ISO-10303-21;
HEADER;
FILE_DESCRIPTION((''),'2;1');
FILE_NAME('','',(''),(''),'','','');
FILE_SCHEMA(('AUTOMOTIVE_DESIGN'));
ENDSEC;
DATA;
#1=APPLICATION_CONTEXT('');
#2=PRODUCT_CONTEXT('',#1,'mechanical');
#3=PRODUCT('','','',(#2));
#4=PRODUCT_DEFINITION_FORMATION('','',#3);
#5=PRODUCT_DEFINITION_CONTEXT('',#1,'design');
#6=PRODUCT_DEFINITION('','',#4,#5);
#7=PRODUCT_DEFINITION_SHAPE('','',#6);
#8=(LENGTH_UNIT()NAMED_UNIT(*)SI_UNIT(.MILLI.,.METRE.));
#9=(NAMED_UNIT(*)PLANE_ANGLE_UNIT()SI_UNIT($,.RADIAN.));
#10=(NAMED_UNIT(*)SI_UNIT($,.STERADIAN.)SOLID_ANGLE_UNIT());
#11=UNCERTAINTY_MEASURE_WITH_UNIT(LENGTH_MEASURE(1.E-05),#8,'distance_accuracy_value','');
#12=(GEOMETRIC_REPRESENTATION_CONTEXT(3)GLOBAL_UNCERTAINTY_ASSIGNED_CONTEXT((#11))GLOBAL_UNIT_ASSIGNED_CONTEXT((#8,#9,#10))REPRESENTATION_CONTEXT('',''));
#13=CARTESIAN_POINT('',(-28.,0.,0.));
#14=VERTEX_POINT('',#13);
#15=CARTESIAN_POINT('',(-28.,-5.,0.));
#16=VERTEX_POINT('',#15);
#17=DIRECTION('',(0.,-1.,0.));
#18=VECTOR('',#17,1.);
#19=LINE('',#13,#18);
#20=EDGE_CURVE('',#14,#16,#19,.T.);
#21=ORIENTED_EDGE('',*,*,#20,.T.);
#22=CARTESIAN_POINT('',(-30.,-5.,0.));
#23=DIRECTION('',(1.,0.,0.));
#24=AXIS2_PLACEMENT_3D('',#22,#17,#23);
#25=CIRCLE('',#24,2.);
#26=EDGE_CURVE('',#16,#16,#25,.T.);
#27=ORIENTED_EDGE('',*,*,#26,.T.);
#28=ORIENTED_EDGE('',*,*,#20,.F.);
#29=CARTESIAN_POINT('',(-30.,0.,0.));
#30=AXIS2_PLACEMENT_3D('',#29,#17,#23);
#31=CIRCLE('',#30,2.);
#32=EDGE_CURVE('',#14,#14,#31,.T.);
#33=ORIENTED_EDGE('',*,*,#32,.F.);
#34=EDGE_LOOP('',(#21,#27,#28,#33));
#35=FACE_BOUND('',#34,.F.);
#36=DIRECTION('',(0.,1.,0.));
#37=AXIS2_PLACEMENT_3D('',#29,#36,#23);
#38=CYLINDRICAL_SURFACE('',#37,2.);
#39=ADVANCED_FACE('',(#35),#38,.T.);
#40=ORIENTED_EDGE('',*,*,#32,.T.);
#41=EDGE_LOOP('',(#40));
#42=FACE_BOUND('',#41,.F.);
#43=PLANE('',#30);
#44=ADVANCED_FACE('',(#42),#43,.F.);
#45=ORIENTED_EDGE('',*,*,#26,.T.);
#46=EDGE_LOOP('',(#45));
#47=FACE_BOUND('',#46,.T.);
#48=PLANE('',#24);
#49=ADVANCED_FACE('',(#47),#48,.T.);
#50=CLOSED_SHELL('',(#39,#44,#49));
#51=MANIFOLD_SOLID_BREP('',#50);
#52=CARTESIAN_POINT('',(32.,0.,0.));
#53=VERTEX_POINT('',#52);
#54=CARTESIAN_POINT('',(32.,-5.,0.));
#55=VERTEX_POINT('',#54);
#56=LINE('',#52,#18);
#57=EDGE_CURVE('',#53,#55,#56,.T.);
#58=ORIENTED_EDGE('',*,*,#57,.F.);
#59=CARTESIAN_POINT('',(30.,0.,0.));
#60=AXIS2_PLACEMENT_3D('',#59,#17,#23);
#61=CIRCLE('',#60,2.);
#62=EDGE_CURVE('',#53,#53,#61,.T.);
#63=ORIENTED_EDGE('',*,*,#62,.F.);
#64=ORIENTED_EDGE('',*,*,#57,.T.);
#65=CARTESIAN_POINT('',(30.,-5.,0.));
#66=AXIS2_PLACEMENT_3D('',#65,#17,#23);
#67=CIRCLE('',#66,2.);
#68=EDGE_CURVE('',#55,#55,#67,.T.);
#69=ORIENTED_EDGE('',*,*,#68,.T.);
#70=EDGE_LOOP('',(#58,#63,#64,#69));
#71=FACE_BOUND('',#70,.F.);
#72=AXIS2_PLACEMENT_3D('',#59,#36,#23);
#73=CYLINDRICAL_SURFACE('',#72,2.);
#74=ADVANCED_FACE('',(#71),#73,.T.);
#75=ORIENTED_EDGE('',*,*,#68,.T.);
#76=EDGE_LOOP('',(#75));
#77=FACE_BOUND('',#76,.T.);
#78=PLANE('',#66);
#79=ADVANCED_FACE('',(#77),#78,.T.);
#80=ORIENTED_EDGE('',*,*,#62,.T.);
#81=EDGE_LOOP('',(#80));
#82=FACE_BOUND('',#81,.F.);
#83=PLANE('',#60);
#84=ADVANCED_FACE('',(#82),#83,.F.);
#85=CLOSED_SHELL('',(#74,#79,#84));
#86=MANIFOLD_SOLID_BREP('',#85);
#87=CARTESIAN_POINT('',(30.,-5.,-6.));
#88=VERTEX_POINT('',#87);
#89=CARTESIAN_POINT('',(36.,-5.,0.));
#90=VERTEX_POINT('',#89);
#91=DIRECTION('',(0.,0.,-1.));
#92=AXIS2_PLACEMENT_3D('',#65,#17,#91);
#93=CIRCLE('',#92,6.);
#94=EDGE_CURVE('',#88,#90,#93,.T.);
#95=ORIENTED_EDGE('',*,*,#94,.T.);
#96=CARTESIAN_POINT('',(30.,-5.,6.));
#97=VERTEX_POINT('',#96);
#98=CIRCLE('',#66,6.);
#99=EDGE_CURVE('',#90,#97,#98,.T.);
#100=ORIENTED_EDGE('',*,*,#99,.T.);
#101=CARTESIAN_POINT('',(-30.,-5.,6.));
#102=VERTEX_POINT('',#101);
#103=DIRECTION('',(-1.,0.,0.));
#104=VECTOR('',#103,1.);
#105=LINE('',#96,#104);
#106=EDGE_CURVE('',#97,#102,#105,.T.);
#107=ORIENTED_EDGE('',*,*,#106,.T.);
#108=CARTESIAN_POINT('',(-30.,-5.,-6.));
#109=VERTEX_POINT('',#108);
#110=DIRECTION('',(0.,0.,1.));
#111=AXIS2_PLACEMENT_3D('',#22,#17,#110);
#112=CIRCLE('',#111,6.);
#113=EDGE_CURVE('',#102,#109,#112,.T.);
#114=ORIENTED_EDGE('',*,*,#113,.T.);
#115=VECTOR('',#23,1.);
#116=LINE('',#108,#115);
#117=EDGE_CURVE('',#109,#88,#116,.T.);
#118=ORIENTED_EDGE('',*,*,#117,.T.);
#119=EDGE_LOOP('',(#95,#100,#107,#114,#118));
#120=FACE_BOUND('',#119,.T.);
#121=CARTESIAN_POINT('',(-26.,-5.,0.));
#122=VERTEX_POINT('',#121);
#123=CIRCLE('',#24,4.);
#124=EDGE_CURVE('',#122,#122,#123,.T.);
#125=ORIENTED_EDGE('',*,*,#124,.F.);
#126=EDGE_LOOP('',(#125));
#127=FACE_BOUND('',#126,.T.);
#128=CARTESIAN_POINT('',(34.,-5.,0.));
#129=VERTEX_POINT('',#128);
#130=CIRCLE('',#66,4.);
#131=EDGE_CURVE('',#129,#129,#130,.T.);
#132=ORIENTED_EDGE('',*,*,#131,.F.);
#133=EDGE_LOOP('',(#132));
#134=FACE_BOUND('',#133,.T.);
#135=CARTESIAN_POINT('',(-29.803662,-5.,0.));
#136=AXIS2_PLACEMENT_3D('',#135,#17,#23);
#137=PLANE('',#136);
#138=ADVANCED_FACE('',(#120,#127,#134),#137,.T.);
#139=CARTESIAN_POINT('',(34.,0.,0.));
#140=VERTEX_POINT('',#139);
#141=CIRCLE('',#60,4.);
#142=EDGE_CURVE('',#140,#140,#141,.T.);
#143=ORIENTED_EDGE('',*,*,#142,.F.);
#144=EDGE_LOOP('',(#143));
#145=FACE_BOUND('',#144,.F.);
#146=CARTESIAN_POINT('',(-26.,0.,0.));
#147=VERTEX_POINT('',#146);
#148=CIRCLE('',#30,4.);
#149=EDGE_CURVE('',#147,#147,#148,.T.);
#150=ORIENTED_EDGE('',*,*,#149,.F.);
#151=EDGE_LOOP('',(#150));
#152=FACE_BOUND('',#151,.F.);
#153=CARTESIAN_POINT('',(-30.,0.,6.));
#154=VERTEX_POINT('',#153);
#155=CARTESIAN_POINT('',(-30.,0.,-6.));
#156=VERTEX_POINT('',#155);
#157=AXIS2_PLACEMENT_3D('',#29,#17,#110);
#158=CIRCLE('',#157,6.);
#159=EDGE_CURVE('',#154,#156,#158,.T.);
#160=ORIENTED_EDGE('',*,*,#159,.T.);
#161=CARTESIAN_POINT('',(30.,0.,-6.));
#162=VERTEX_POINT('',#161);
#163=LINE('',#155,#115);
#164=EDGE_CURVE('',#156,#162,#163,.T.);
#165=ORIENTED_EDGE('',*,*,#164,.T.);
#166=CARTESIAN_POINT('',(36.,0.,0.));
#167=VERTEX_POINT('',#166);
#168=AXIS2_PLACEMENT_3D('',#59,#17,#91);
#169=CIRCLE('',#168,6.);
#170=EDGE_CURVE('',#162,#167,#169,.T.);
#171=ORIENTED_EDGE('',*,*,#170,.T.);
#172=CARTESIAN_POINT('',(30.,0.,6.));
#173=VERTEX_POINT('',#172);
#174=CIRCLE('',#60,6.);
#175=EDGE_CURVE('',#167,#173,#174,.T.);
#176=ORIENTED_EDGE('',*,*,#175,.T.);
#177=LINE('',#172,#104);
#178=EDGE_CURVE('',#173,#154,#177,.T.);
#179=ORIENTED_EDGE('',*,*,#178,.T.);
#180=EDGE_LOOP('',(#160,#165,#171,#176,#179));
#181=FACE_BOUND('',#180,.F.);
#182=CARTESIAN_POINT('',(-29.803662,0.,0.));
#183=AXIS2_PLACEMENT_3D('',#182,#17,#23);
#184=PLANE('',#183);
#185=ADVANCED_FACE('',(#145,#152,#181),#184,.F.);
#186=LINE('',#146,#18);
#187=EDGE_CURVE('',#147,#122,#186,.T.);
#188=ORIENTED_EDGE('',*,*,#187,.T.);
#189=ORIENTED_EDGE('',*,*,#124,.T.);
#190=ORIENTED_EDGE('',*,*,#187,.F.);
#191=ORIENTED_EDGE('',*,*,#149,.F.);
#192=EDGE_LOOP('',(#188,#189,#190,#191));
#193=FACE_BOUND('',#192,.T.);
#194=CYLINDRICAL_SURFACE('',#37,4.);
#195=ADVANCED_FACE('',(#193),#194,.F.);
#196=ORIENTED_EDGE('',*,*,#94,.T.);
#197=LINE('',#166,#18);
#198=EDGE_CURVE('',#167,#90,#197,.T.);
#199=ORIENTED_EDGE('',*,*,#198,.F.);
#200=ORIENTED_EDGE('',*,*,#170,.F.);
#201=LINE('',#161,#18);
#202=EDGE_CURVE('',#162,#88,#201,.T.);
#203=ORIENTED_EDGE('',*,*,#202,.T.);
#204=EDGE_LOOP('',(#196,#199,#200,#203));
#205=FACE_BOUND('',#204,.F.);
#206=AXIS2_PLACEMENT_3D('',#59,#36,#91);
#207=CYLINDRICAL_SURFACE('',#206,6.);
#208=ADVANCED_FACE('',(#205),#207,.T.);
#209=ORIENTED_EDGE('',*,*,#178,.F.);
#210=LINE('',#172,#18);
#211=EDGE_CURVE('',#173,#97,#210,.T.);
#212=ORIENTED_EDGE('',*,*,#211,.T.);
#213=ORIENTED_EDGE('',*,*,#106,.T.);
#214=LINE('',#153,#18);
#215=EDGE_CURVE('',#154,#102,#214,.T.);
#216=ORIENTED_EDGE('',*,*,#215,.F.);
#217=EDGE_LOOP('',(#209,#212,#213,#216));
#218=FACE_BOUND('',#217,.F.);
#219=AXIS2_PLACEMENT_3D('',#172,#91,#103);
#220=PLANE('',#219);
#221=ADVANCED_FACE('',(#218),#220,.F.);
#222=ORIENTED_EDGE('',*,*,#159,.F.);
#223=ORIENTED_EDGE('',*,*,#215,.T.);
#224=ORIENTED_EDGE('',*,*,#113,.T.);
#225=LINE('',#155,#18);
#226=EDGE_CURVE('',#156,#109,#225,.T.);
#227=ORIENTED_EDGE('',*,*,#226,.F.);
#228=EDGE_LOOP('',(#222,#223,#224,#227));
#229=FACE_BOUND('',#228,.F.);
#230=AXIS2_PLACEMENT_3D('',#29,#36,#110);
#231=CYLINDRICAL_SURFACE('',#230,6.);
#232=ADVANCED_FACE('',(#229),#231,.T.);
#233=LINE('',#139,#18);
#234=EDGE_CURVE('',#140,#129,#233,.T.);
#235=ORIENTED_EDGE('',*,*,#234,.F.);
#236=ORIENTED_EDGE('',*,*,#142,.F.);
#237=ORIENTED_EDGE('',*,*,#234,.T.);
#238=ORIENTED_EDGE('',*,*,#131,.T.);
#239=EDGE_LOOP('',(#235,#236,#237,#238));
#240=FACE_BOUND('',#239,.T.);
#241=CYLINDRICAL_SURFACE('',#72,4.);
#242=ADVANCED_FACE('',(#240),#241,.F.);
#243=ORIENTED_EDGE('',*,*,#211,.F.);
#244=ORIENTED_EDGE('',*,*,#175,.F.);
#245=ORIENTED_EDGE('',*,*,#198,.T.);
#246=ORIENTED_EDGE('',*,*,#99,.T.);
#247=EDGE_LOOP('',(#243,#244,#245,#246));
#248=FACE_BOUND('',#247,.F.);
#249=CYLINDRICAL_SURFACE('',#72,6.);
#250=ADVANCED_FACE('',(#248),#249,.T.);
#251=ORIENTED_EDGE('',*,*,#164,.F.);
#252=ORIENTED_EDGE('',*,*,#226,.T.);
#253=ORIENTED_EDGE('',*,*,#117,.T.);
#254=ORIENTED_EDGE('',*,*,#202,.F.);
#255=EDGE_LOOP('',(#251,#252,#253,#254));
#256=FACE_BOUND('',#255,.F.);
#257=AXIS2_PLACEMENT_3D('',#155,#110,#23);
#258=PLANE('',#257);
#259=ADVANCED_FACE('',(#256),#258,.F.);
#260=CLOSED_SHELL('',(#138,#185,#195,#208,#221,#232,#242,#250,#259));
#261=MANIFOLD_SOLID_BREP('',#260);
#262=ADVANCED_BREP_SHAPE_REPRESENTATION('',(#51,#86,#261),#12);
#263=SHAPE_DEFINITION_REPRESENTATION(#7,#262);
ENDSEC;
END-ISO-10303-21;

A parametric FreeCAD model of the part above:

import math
import FreeCAD as App
import Part
import Sketcher
from FreeCAD import Vector

doc = App.newDocument("Part")
body = doc.addObject("PartDesign::Body", "Body")

sketch1 = body.newObject("Sketcher::SketchObject", "Sketch")
sketch1.AttachmentSupport = (doc.getObject("XZ_Plane"), [""])
sketch1.MapMode = "FlatFace"
sketch1.addGeometry(Part.Circle(Vector(-30, 0, 0), Vector(0, 0, 1), 2), False)
sketch1.addConstraint([
    Sketcher.Constraint("PointOnObject", 0, 3, -1),
    Sketcher.Constraint("Diameter", 0, 4.0),
    Sketcher.Constraint("DistanceX", 0, 3, -1, 1, 30.0),
])
pad1 = body.newObject("PartDesign::Pad", "Pad")
pad1.Profile = sketch1
pad1.Length = 5
body2 = doc.addObject("PartDesign::Body", "Body001")

sketch2 = body2.newObject("Sketcher::SketchObject", "Sketch001")
sketch2.AttachmentSupport = (doc.getObject("XZ_Plane001"), [""])
sketch2.MapMode = "FlatFace"
sketch2.addGeometry([
    Part.ArcOfCircle(Part.Circle(Vector(-30, 0, 0), Vector(0, 0, 1), 6), math.radians(90), math.radians(270)),
    Part.LineSegment(Vector(-30, -6, 0), Vector(30, -6, 0)),
    Part.ArcOfCircle(Part.Circle(Vector(30, 0, 0), Vector(0, 0, 1), 6), math.radians(-90), math.radians(0)),
    Part.ArcOfCircle(Part.Circle(Vector(30, 0, 0), Vector(0, 0, 1), 6), math.radians(0), math.radians(90)),
    Part.LineSegment(Vector(30, 6, 0), Vector(-30, 6, 0)),
    Part.Circle(Vector(-30, 0, 0), Vector(0, 0, 1), 4),
    Part.Circle(Vector(30, 0, 0), Vector(0, 0, 1), 4),
], False)
sketch2.addConstraint([
    Sketcher.Constraint("Tangent", 0, 2, 1, 1),
    Sketcher.Constraint("Tangent", 1, 2, 2, 1),
    Sketcher.Constraint("Tangent", 2, 2, 3, 1),
    Sketcher.Constraint("Tangent", 3, 2, 4, 1),
    Sketcher.Constraint("Tangent", 4, 2, 0, 1),
    Sketcher.Constraint("Horizontal", 1),
    Sketcher.Constraint("Horizontal", 4),
    Sketcher.Constraint("Coincident", 5, 3, 0, 3),
    Sketcher.Constraint("Coincident", 6, 3, 2, 3),
    Sketcher.Constraint("Equal", 0, 2),
    Sketcher.Constraint("Equal", 5, 6),
    Sketcher.Constraint("Symmetric", 0, 3, 2, 3, -1, 1),
    Sketcher.Constraint("PointOnObject", 2, 2, -1),
    Sketcher.Constraint("Diameter", 5, 8.0),
    Sketcher.Constraint("Radius", 0, 6.0),
    Sketcher.Constraint("DistanceX", 1, 1, 1, 2, 60.0),
])
pad2 = body2.newObject("PartDesign::Pad", "Pad001")
pad2.Profile = sketch2
pad2.Length = 5
body3 = doc.addObject("PartDesign::Body", "Body002")

sketch3 = body3.newObject("Sketcher::SketchObject", "Sketch002")
sketch3.AttachmentSupport = (doc.getObject("XZ_Plane002"), [""])
sketch3.MapMode = "FlatFace"
sketch3.addGeometry(Part.Circle(Vector(30, 0, 0), Vector(0, 0, 1), 2), False)
sketch3.addConstraint([
    Sketcher.Constraint("PointOnObject", 0, 3, -1),
    Sketcher.Constraint("Diameter", 0, 4.0),
    Sketcher.Constraint("DistanceX", -1, 1, 0, 3, 30.0),
])
pad3 = body3.newObject("PartDesign::Pad", "Pad002")
pad3.Profile = sketch3
pad3.Length = 5

doc.recompute()
